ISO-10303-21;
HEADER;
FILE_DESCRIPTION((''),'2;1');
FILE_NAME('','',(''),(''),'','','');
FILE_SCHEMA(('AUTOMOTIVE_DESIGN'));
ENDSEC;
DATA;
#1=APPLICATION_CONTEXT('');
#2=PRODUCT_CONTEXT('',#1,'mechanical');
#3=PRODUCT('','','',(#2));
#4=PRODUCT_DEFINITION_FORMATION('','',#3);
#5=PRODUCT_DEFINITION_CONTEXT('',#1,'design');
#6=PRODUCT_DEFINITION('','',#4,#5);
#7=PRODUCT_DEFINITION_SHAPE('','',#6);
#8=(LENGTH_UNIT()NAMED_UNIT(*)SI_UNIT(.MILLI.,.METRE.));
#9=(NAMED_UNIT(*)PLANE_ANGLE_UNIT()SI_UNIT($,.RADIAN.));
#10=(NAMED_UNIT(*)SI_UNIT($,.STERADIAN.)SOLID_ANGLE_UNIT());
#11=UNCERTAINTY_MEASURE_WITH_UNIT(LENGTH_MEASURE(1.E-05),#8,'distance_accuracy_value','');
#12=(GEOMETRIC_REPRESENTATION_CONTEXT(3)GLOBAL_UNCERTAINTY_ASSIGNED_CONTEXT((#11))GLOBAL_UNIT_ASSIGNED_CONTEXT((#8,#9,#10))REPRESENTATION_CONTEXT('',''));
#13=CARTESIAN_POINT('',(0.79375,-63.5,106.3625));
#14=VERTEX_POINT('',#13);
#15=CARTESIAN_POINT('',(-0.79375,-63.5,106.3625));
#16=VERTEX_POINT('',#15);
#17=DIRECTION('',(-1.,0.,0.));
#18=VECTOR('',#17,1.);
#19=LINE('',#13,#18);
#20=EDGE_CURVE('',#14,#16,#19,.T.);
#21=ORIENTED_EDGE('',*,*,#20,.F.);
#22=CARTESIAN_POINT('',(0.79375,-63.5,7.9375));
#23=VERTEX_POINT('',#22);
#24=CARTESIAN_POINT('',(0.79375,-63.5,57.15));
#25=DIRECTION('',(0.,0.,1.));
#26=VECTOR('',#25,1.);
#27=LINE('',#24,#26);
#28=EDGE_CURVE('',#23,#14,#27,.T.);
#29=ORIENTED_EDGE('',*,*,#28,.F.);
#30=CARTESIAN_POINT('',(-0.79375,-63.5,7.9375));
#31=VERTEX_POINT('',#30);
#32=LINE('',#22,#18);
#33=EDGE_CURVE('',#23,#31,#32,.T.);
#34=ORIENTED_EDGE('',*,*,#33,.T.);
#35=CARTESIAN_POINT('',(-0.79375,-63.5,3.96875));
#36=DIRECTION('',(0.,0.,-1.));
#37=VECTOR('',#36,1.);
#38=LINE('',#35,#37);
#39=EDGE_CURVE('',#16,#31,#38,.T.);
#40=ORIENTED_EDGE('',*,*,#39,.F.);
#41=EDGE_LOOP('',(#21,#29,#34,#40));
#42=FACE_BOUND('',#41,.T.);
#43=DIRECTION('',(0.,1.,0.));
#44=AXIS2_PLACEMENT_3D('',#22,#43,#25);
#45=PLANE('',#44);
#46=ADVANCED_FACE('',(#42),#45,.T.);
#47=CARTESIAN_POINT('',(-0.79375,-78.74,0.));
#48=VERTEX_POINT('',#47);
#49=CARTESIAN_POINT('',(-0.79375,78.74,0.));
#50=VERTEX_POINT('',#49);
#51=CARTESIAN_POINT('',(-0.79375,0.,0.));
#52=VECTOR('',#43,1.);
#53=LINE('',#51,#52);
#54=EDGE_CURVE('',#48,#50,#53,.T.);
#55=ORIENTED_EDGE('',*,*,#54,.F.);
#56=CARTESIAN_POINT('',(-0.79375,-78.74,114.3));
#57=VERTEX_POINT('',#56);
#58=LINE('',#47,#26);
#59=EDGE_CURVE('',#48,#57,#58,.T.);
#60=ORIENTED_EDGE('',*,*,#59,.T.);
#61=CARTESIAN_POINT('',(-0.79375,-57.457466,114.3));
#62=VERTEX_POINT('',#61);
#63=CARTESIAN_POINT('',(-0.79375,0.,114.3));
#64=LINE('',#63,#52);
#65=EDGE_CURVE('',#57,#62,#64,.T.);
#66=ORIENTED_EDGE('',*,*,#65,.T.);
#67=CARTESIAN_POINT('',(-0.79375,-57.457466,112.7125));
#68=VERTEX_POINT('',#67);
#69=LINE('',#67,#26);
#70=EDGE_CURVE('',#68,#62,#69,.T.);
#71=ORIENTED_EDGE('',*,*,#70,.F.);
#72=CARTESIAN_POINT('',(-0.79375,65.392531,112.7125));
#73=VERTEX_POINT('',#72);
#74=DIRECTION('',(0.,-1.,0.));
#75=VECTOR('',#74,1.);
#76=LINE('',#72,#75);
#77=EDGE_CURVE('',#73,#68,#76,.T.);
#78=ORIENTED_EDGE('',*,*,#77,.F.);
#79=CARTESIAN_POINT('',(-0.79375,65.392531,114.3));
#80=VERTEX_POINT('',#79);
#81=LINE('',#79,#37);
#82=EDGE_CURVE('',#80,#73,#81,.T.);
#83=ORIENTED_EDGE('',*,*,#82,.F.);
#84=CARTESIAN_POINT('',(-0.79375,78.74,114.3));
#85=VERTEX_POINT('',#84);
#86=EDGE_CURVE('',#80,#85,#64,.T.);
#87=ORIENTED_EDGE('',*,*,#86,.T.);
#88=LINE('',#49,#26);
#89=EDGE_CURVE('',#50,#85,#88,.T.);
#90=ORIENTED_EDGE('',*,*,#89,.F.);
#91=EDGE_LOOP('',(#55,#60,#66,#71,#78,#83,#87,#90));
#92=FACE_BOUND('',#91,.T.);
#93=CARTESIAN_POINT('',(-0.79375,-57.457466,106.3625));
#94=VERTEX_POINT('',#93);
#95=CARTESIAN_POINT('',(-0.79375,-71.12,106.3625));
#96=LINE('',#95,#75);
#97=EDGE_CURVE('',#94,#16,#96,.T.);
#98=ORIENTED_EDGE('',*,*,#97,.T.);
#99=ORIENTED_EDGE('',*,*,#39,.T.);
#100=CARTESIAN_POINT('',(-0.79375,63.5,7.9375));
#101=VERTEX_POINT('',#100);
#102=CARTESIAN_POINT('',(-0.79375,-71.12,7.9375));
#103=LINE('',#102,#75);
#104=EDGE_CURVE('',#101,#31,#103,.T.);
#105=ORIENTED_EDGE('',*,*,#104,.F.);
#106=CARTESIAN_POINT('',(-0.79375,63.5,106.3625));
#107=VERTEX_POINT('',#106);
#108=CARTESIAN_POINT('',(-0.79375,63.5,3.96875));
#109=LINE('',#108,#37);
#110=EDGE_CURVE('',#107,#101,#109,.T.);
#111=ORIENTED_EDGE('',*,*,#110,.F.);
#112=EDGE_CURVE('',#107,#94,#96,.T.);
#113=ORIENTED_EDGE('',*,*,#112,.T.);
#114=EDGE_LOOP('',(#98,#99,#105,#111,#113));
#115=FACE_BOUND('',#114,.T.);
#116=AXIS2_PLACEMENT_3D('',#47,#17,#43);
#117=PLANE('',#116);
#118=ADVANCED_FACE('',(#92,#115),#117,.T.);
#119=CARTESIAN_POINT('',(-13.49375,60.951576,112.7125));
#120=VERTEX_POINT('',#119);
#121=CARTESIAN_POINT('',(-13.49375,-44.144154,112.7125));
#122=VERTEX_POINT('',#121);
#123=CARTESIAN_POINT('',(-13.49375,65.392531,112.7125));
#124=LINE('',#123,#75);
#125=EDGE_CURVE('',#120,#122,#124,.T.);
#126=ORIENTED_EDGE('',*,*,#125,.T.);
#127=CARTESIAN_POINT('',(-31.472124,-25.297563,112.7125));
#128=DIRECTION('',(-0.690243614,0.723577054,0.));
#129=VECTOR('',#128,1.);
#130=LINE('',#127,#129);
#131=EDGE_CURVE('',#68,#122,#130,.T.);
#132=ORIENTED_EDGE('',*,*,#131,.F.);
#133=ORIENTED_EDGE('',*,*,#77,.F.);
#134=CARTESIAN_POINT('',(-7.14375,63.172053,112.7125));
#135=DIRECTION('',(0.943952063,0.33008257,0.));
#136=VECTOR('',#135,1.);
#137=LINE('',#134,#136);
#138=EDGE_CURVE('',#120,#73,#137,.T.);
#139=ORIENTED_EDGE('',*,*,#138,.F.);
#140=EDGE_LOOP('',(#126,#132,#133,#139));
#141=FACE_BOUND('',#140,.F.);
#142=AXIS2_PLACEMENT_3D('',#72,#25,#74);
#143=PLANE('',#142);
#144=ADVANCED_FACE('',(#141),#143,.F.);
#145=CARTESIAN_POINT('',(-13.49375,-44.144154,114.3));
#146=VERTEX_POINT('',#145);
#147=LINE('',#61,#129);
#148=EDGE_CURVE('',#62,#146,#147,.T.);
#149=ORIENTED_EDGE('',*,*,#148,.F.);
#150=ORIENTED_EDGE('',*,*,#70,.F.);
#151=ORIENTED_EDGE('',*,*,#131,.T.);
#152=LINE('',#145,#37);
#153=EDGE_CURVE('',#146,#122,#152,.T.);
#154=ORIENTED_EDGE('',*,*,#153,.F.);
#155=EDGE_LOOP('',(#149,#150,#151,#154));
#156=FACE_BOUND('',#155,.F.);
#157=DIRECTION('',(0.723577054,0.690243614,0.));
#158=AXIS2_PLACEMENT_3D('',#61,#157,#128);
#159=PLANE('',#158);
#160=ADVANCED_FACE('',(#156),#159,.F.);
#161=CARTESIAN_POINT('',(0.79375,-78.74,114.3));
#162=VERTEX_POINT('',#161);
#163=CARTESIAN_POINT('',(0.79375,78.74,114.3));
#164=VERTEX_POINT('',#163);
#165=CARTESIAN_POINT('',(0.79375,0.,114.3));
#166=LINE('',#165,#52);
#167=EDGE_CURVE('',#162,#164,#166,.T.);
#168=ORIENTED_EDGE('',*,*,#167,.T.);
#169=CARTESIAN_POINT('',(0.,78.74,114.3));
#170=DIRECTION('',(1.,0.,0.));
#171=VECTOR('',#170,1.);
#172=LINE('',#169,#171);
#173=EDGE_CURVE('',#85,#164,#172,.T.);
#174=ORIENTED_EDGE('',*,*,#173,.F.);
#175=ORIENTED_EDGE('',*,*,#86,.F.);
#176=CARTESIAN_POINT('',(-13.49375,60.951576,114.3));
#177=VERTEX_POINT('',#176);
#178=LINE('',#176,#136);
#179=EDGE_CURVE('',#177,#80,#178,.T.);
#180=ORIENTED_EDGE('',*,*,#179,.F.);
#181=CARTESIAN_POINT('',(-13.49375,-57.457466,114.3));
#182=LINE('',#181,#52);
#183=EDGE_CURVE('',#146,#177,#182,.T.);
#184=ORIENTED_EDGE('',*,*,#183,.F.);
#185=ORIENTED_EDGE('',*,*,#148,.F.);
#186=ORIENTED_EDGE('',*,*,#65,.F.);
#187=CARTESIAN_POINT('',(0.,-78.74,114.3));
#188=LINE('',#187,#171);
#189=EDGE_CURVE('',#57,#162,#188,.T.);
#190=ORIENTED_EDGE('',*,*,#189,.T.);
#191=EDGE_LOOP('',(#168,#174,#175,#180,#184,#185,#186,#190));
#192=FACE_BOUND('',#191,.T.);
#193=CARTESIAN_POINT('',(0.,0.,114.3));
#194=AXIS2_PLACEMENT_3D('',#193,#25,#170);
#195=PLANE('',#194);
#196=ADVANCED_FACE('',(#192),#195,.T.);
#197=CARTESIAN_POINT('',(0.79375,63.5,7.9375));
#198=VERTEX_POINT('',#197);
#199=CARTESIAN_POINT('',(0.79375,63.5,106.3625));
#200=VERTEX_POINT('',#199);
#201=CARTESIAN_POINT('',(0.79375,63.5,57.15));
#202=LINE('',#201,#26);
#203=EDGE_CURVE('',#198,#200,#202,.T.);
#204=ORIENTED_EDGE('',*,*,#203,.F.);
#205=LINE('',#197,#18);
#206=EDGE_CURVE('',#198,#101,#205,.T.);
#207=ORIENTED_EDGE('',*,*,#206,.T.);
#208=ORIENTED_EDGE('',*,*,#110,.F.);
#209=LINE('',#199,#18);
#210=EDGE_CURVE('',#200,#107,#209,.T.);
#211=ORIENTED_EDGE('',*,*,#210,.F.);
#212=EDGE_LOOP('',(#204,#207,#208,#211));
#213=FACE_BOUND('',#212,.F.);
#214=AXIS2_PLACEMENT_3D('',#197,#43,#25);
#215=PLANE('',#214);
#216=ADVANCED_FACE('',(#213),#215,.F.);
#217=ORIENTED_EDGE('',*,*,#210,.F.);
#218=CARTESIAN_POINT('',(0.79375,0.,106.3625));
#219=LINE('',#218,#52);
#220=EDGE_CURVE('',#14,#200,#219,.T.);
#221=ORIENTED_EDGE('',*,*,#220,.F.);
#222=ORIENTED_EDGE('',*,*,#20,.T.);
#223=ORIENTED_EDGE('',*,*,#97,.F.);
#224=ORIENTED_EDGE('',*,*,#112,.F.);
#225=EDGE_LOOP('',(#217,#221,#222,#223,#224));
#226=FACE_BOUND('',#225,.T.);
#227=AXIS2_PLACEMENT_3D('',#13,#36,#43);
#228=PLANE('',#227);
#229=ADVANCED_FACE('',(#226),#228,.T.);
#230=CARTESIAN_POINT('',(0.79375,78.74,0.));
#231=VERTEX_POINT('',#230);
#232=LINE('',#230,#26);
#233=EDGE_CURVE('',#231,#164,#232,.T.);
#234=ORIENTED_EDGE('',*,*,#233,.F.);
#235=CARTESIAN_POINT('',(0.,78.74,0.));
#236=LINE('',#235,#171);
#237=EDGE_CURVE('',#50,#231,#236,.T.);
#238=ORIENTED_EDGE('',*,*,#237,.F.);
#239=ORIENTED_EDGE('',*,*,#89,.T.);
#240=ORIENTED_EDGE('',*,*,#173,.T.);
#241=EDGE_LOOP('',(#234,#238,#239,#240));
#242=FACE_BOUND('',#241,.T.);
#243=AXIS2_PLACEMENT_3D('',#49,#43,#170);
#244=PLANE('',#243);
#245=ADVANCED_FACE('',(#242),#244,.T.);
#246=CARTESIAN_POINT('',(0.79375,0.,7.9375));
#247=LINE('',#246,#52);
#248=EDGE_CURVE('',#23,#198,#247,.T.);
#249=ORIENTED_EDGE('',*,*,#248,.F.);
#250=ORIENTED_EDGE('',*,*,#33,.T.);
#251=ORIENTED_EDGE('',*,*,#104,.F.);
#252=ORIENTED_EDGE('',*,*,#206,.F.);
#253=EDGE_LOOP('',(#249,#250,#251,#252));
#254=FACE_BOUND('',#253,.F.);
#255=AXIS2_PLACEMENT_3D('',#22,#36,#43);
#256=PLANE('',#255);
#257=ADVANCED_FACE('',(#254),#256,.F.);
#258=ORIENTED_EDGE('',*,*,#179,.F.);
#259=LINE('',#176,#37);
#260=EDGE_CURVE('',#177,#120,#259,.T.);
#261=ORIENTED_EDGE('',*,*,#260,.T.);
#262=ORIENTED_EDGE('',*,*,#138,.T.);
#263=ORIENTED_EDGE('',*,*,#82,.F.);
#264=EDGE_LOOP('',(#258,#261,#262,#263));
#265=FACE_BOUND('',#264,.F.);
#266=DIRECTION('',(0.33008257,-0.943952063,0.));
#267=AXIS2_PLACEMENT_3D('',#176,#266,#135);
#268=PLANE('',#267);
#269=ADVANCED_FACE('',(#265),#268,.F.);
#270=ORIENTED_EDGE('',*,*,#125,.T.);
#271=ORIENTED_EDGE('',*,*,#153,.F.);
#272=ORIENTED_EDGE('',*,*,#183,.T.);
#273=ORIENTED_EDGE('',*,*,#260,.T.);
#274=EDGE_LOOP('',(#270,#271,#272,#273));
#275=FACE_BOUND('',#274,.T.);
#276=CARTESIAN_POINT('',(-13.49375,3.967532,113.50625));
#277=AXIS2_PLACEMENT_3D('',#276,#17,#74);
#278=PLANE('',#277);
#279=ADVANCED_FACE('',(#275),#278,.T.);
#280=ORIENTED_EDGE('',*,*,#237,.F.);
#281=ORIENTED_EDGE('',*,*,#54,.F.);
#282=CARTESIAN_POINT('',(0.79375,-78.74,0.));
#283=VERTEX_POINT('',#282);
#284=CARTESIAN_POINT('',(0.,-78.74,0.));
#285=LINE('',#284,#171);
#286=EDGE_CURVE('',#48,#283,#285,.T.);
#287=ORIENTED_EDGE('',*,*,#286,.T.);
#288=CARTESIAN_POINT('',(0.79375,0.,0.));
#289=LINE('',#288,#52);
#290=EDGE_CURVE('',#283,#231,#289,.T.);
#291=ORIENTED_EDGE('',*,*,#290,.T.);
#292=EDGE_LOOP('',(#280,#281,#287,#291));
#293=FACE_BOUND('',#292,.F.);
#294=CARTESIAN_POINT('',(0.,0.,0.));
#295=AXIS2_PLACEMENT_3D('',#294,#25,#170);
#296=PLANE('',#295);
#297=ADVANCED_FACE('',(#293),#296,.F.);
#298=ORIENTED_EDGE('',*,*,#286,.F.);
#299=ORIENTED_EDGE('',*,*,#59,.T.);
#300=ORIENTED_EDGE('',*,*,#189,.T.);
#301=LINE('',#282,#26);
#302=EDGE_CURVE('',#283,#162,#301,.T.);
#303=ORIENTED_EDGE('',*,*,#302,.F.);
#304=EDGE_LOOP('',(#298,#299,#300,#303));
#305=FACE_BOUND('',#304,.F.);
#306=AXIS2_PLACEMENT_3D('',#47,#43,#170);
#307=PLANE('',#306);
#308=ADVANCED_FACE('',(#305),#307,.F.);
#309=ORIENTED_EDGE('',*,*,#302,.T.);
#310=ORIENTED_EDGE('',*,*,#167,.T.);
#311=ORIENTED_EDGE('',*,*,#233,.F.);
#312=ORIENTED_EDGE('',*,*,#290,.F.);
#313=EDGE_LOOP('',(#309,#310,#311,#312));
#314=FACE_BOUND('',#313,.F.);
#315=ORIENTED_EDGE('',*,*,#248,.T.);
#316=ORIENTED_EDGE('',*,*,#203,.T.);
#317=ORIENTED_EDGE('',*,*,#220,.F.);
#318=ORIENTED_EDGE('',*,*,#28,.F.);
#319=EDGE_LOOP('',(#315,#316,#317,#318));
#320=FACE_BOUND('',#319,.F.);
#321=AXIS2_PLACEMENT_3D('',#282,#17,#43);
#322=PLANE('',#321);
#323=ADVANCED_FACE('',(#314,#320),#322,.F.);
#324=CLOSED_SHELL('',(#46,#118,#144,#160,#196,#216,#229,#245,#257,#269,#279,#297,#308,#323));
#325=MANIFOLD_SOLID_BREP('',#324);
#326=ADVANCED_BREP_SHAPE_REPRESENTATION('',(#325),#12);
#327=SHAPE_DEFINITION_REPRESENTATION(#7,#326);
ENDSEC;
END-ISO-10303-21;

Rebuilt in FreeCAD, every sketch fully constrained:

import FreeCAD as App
import Part
import Sketcher
Q = App.Units.Quantity

doc = App.newDocument("Part")
body = doc.addObject("PartDesign::Body", "Body")

sketch1 = doc.addObject("Sketcher::SketchObject", "Sketch")
body.addObject(sketch1)
sketch1.AttachmentSupport = (doc.XY_Plane, [""])
sketch1.MapMode = "FlatFace"
sketch1.addGeometry([
    Part.LineSegment(App.Vector(-0.8, 78.7, 0), App.Vector(-0.8, -78.7, 0)),
    Part.LineSegment(App.Vector(-0.8, -78.7, 0), App.Vector(0.8, -78.7, 0)),
    Part.LineSegment(App.Vector(0.8, -78.7, 0), App.Vector(0.8, 78.7, 0)),
    Part.LineSegment(App.Vector(0.8, 78.7, 0), App.Vector(-0.8, 78.7, 0)),
], False)
sketch1.addConstraint([
    Sketcher.Constraint("Coincident", 0, 2, 1, 1),
    Sketcher.Constraint("Coincident", 1, 2, 2, 1),
    Sketcher.Constraint("Coincident", 2, 2, 3, 1),
    Sketcher.Constraint("Coincident", 3, 2, 0, 1),
    Sketcher.Constraint("Vertical", 0),
    Sketcher.Constraint("Horizontal", 1),
    Sketcher.Constraint("Vertical", 2),
    Sketcher.Constraint("Horizontal", 3),
    Sketcher.Constraint("Symmetric", 0, 2, 2, 2, -1, 1),
    Sketcher.Constraint("DistanceY", 0, 2, 0, 1, Q("6.2 in")),
    Sketcher.Constraint("DistanceX", 1, 1, 1, 2, Q("0.0625 in")),
])
pad1 = doc.addObject("PartDesign::Pad", "Pad")
body.addObject(pad1)
pad1.Profile = sketch1
pad1.Length = Q("4.5 in")

sketch2 = doc.addObject("Sketcher::SketchObject", "Sketch001")
body.addObject(sketch2)
sketch2.AttachmentSupport = (doc.YZ_Plane, [""])
sketch2.MapMode = "FlatFace"
sketch2.AttachmentOffset = App.Placement(App.Vector(0, 0, 0.03125 * 25.4), App.Rotation())
sketch2.addGeometry([
    Part.LineSegment(App.Vector(-64, 106, 0), App.Vector(-64, 8, 0)),
    Part.LineSegment(App.Vector(-64, 8, 0), App.Vector(64, 8, 0)),
    Part.LineSegment(App.Vector(64, 8, 0), App.Vector(64, 106, 0)),
    Part.LineSegment(App.Vector(64, 106, 0), App.Vector(-64, 106, 0)),
], False)
sketch2.addConstraint([
    Sketcher.Constraint("Coincident", 0, 2, 1, 1),
    Sketcher.Constraint("Coincident", 1, 2, 2, 1),
    Sketcher.Constraint("Coincident", 2, 2, 3, 1),
    Sketcher.Constraint("Coincident", 3, 2, 0, 1),
    Sketcher.Constraint("Vertical", 0),
    Sketcher.Constraint("Horizontal", 1),
    Sketcher.Constraint("Vertical", 2),
    Sketcher.Constraint("Horizontal", 3),
    Sketcher.Constraint("DistanceX", 1, 1, 1, 2, Q("5 in")),
    Sketcher.Constraint("DistanceX", 0, 2, -1, 1, Q("2.5 in")),
    Sketcher.Constraint("DistanceY", 0, 2, 0, 1, Q("3.875 in")),
    Sketcher.Constraint("DistanceY", -1, 1, 0, 2, Q("0.3125 in")),
])
pocket1 = doc.addObject("PartDesign::Pocket", "Pocket")
body.addObject(pocket1)
pocket1.Profile = sketch2
pocket1.Length = Q("1 in")

sketch3 = doc.addObject("Sketcher::SketchObject", "Sketch002")
body.addObject(sketch3)
sketch3.AttachmentSupport = (doc.YZ_Plane, [""])
sketch3.MapMode = "FlatFace"
sketch3.AttachmentOffset = App.Placement(App.Vector(0, 0, -0.03125 * 25.4), App.Rotation())
sketch3.addGeometry([
    Part.LineSegment(App.Vector(65.4, 114.3, 0), App.Vector(65.4, 112.7, 0)),
    Part.LineSegment(App.Vector(65.4, 112.7, 0), App.Vector(-57.5, 112.7, 0)),
    Part.LineSegment(App.Vector(-57.5, 112.7, 0), App.Vector(-57.5, 114.3, 0)),
    Part.LineSegment(App.Vector(-57.5, 114.3, 0), App.Vector(65.4, 114.3, 0)),
], False)
sketch3.addConstraint([
    Sketcher.Constraint("Coincident", 0, 2, 1, 1),
    Sketcher.Constraint("Coincident", 1, 2, 2, 1),
    Sketcher.Constraint("Coincident", 2, 2, 3, 1),
    Sketcher.Constraint("Coincident", 3, 2, 0, 1),
    Sketcher.Constraint("Vertical", 0),
    Sketcher.Constraint("Horizontal", 1),
    Sketcher.Constraint("Vertical", 2),
    Sketcher.Constraint("Horizontal", 3),
    Sketcher.Constraint("DistanceY", -1, 1, 2, 2, Q("4.5 in")),
    Sketcher.Constraint("DistanceY", 0, 2, 0, 1, Q("0.0625 in")),
    Sketcher.Constraint("DistanceX", 1, 2, 1, 1, Q("122.849997 mm")),
    Sketcher.Constraint("DistanceX", -1, 1, 0, 2, Q("65.392531 mm")),
])
pad2 = doc.addObject("PartDesign::Pad", "Pad001")
body.addObject(pad2)
pad2.Profile = sketch3
pad2.Length = Q("0.5 in")
pad2.Reversed = True

sketch4 = doc.addObject("Sketcher::SketchObject", "Sketch003")
body.addObject(sketch4)
sketch4.AttachmentSupport = (doc.XY_Plane, [""])
sketch4.MapMode = "FlatFace"
sketch4.AttachmentOffset = App.Placement(App.Vector(0, 0, 4.5 * 25.4), App.Rotation())
sketch4.addGeometry([
    Part.LineSegment(App.Vector(-0.8, 65.4, 0), App.Vector(-13.5, 65.4, 0)),
    Part.LineSegment(App.Vector(-13.5, 65.4, 0), App.Vector(-13.5, 61, 0)),
    Part.LineSegment(App.Vector(-13.5, 61, 0), App.Vector(-0.8, 65.4, 0)),
    Part.LineSegment(App.Vector(-13.5, -44.1, 0), App.Vector(-13.5, -57.5, 0)),
    Part.LineSegment(App.Vector(-13.5, -57.5, 0), App.Vector(-0.8, -57.5, 0)),
    Part.LineSegment(App.Vector(-0.8, -57.5, 0), App.Vector(-13.5, -44.1, 0)),
], False)
sketch4.addConstraint([
    Sketcher.Constraint("Coincident", 0, 2, 1, 1),
    Sketcher.Constraint("Coincident", 1, 2, 2, 1),
    Sketcher.Constraint("Coincident", 2, 2, 0, 1),
    Sketcher.Constraint("Coincident", 3, 2, 4, 1),
    Sketcher.Constraint("Coincident", 4, 2, 5, 1),
    Sketcher.Constraint("Coincident", 5, 2, 3, 1),
    Sketcher.Constraint("Horizontal", 0),
    Sketcher.Constraint("Vertical", 1),
    Sketcher.Constraint("Vertical", 3),
    Sketcher.Constraint("Horizontal", 4),
    Sketcher.Constraint("Vertical", 1, 2, 3, 2),
    Sketcher.Constraint("Vertical", 2, 2, 4, 2),
    Sketcher.Constraint("DistanceX", 0, 2, 0, 1, Q("0.5 in")),
    Sketcher.Constraint("DistanceX", 0, 2, -1, 1, Q("0.53125 in")),
    Sketcher.Constraint("Distance", 5, Q("18.399301 mm")),
    Sketcher.Constraint("DistanceY", 1, 2, 1, 1, Q("4.440955 mm")),
    Sketcher.Constraint("DistanceY", -1, 1, 0, 2, Q("65.392531 mm")),
    Sketcher.Constraint("DistanceY", 3, 2, 1, 2, Q("118.409042 mm")),
])
pocket2 = doc.addObject("PartDesign::Pocket", "Pocket001")
body.addObject(pocket2)
pocket2.Profile = sketch4
pocket2.Length = Q("1 in")

doc.recompute()
